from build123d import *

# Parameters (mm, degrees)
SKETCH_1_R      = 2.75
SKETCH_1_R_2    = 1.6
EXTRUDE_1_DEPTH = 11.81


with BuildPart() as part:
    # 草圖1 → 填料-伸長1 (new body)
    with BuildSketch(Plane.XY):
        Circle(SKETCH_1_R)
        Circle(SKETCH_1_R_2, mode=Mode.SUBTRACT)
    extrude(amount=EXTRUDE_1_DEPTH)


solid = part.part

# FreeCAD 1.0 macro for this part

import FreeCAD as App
import Part
import Sketcher
from FreeCAD import Vector
Q = App.Units.Quantity

doc = App.newDocument("Part")
params = doc.addObject("Spreadsheet::Sheet", "Params")
for row, (alias, value) in enumerate([
    ("sketch1_diameter", "5.5 mm"),
    ("sketch1_diameter2", "3.2 mm"),
    ("pad1_length", "11.81 mm"),
], start=1):
    params.set(f"A{row}", alias)
    params.set(f"B{row}", "=" + value)
    params.setAlias(f"B{row}", alias)

body = doc.addObject("PartDesign::Body", "Body")

# Sketch on XY plane
sketch1 = doc.addObject("Sketcher::SketchObject", "Sketch")
body.addObject(sketch1)
sketch1.AttachmentSupport = (doc.XY_Plane, [""])
sketch1.MapMode = "FlatFace"
sketch1.addGeometry([
    Part.Circle(Vector(0, 0, 0), Vector(0, 0, 1), 2.75),
    Part.Circle(Vector(0, 0, 0), Vector(0, 0, 1), 1.6),
], False)
sketch1.addConstraint([
    Sketcher.Constraint("Coincident", 0, 3, -1, 1),
    Sketcher.Constraint("Coincident", 1, 3, -1, 1),
    Sketcher.Constraint("Diameter", 0, Q("5.5 mm")),
    Sketcher.Constraint("Diameter", 1, Q("3.2 mm")),
])
sketch1.setExpression("Constraints[2]", "Params.sketch1_diameter")
sketch1.setExpression("Constraints[3]", "Params.sketch1_diameter2")
pad1 = doc.addObject("PartDesign::Pad", "Pad")
body.addObject(pad1)
pad1.Profile = sketch1
pad1.setExpression("Length", "Params.pad1_length")

doc.recompute()
